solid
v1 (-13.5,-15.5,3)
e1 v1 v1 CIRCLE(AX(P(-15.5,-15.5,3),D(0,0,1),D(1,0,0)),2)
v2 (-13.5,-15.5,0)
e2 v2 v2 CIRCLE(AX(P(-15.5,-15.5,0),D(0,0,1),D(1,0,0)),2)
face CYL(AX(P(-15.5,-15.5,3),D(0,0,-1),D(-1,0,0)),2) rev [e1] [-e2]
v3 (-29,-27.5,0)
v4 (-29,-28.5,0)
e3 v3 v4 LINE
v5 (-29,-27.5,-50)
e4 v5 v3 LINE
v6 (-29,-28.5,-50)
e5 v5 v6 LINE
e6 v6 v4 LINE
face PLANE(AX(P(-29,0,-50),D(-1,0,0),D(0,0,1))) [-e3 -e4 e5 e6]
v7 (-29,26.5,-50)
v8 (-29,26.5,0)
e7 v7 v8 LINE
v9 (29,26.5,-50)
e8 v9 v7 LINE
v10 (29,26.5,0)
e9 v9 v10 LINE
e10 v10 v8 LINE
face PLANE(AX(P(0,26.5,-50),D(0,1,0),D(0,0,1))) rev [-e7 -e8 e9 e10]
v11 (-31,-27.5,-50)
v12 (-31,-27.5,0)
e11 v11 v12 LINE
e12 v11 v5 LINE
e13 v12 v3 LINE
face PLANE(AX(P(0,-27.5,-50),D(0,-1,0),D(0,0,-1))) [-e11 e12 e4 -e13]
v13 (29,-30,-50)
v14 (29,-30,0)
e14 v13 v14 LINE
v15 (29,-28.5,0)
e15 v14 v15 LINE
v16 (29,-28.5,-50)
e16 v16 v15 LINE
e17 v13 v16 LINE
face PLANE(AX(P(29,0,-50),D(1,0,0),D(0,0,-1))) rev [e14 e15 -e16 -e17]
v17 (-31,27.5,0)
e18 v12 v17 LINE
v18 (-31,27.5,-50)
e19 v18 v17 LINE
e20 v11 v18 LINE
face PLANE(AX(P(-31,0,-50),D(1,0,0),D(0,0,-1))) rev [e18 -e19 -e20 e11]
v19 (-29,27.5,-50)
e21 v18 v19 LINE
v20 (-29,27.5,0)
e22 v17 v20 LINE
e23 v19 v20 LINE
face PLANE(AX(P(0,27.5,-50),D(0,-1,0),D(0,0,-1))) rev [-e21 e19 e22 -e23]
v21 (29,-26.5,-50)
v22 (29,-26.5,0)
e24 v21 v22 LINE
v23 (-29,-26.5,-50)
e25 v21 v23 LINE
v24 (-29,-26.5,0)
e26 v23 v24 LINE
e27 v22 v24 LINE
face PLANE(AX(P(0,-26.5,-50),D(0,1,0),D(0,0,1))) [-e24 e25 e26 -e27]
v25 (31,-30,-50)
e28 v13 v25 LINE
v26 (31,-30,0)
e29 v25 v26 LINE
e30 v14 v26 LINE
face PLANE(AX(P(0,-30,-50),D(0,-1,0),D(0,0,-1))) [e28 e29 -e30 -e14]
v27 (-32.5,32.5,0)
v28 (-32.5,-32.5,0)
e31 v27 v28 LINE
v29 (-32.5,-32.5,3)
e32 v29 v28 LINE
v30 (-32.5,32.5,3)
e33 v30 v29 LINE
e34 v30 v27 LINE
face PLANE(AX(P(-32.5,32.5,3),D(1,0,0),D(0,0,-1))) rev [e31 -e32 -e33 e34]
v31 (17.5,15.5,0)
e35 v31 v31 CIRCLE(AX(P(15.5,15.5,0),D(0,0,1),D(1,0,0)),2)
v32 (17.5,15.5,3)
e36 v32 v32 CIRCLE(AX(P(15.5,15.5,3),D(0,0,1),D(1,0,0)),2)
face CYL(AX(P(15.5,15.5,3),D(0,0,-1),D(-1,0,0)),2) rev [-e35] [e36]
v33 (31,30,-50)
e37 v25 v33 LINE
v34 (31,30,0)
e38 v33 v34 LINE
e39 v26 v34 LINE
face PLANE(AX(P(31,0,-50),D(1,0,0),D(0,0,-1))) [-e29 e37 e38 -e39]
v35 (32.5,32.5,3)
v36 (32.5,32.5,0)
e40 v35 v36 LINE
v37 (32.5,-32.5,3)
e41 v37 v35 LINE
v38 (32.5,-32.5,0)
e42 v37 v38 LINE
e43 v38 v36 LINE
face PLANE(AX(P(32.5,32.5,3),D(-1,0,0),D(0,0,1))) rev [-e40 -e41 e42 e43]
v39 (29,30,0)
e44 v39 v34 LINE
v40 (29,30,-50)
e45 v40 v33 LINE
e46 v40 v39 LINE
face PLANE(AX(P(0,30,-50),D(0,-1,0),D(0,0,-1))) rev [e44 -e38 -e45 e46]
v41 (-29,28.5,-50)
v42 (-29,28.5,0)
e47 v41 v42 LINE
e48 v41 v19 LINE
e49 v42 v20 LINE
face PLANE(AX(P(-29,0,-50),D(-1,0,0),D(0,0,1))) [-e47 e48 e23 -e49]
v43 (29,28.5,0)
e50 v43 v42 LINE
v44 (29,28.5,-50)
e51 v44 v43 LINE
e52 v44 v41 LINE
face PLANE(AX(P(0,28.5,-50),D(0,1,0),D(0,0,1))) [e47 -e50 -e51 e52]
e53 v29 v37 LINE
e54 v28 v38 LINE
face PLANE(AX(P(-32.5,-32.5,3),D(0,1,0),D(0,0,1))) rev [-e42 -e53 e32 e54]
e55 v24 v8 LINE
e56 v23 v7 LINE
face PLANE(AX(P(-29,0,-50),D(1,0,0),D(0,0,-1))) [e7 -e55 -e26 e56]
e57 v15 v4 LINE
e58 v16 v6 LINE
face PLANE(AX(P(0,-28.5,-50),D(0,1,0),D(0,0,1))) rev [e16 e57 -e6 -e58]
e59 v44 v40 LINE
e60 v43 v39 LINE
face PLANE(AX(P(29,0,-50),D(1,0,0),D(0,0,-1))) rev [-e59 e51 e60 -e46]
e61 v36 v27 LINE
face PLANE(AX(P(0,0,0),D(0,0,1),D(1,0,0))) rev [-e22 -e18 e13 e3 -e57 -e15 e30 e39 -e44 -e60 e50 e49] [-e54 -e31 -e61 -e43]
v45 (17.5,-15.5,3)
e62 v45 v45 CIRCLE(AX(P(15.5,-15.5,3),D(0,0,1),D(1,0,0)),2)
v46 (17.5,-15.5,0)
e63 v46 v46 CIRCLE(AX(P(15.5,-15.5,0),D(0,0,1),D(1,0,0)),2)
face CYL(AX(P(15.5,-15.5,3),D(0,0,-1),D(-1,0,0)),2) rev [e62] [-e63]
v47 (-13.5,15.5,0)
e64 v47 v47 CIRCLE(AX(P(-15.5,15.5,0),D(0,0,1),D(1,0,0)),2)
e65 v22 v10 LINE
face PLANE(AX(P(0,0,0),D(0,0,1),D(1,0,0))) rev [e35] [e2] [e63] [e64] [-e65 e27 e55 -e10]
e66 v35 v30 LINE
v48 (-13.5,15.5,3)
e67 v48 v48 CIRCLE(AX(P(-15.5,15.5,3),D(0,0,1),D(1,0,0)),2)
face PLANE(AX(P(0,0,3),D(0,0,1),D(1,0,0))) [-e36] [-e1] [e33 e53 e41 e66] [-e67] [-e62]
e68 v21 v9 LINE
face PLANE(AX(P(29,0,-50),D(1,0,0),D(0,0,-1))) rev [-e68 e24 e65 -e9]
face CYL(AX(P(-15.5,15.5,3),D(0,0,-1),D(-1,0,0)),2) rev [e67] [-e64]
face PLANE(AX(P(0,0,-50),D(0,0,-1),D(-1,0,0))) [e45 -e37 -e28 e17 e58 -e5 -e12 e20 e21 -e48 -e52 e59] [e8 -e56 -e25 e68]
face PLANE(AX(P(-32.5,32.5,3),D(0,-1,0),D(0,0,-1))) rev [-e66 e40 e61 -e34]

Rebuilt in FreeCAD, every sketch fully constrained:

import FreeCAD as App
import Part
import Sketcher

doc = App.newDocument("Part")
body = doc.addObject("PartDesign::Body", "Body")

# Sketch on XY plane
sketch1 = body.newObject("Sketcher::SketchObject", "Sketch")
sketch1.AttachmentSupport = (doc.getObject("XY_Plane"), [""])
sketch1.MapMode = "FlatFace"
sketch1.addGeometry(Part.LineSegment(App.Vector(-32.5, 32.5, 0), App.Vector(-32.5, -32.5, 0)), False)
sketch1.addGeometry(Part.LineSegment(App.Vector(-32.5, -32.5, 0), App.Vector(32.5, -32.5, 0)), False)
sketch1.addGeometry(Part.LineSegment(App.Vector(32.5, -32.5, 0), App.Vector(32.5, 32.5, 0)), False)
sketch1.addGeometry(Part.LineSegment(App.Vector(32.5, 32.5, 0), App.Vector(-32.5, 32.5, 0)), False)
sketch1.addGeometry(Part.Circle(App.Vector(-15.5, -15.5, 0), App.Vector(0, 0, 1), 2), False)
sketch1.addGeometry(Part.Circle(App.Vector(15.5, -15.5, 0), App.Vector(0, 0, 1), 2), False)
sketch1.addGeometry(Part.Circle(App.Vector(-15.5, 15.5, 0), App.Vector(0, 0, 1), 2), False)
sketch1.addGeometry(Part.Circle(App.Vector(15.5, 15.5, 0), App.Vector(0, 0, 1), 2), False)
sketch1.addConstraint(Sketcher.Constraint("Coincident", 0, 2, 1, 1))
sketch1.addConstraint(Sketcher.Constraint("Coincident", 1, 2, 2, 1))
sketch1.addConstraint(Sketcher.Constraint("Coincident", 2, 2, 3, 1))
sketch1.addConstraint(Sketcher.Constraint("Coincident", 3, 2, 0, 1))
sketch1.addConstraint(Sketcher.Constraint("Vertical", 0))
sketch1.addConstraint(Sketcher.Constraint("Horizontal", 1))
sketch1.addConstraint(Sketcher.Constraint("Vertical", 2))
sketch1.addConstraint(Sketcher.Constraint("Horizontal", 3))
sketch1.addConstraint(Sketcher.Constraint("Equal", 4, 5))
sketch1.addConstraint(Sketcher.Constraint("Equal", 5, 6))
sketch1.addConstraint(Sketcher.Constraint("Equal", 6, 7))
sketch1.addConstraint(Sketcher.Constraint("Symmetric", 5, 3, 6, 3, -1, 1))
sketch1.addConstraint(Sketcher.Constraint("Symmetric", 4, 3, 7, 3, -1, 1))
sketch1.addConstraint(Sketcher.Constraint("Symmetric", 0, 2, 2, 2, -1, 1))
sketch1.addConstraint(Sketcher.Constraint("Symmetric", 4, 3, 5, 3, -2))
sketch1.addConstraint(Sketcher.Constraint("Equal", 3, 0))
sketch1.addConstraint(Sketcher.Constraint("Diameter", 4, 4.0))
sketch1.addConstraint(Sketcher.Constraint("DistanceX", 1, 1, 1, 2, 65.0))
sketch1.addConstraint(Sketcher.Constraint("DistanceX", 4, 3, 5, 3, 31.0))
sketch1.addConstraint(Sketcher.Constraint("DistanceY", 4, 3, 6, 3, 31.0))
pad1 = body.newObject("PartDesign::Pad", "Pad")
pad1.Profile = sketch1
pad1.Length = 3

# Sketch on XY plane
sketch2 = body.newObject("Sketcher::SketchObject", "Sketch001")
sketch2.AttachmentSupport = (doc.getObject("XY_Plane"), [""])
sketch2.MapMode = "FlatFace"
sketch2.addGeometry(Part.LineSegment(App.Vector(31, 30, 0), App.Vector(31, -30, 0)), False)
sketch2.addGeometry(Part.LineSegment(App.Vector(31, -30, 0), App.Vector(29, -30, 0)), False)
sketch2.addGeometry(Part.LineSegment(App.Vector(29, -30, 0), App.Vector(29, -28.5, 0)), False)
sketch2.addGeometry(Part.LineSegment(App.Vector(29, -28.5, 0), App.Vector(-29, -28.5, 0)), False)
sketch2.addGeometry(Part.LineSegment(App.Vector(-29, -28.5, 0), App.Vector(-29, -27.5, 0)), False)
sketch2.addGeometry(Part.LineSegment(App.Vector(-29, -27.5, 0), App.Vector(-31, -27.5, 0)), False)
sketch2.addGeometry(Part.LineSegment(App.Vector(-31, -27.5, 0), App.Vector(-31, 27.5, 0)), False)
sketch2.addGeometry(Part.LineSegment(App.Vector(-31, 27.5, 0), App.Vector(-29, 27.5, 0)), False)
sketch2.addGeometry(Part.LineSegment(App.Vector(-29, 27.5, 0), App.Vector(-29, 28.5, 0)), False)
sketch2.addGeometry(Part.LineSegment(App.Vector(-29, 28.5, 0), App.Vector(29, 28.5, 0)), False)
sketch2.addGeometry(Part.LineSegment(App.Vector(29, 28.5, 0), App.Vector(29, 30, 0)), False)
sketch2.addGeometry(Part.LineSegment(App.Vector(29, 30, 0), App.Vector(31, 30, 0)), False)
sketch2.addGeometry(Part.LineSegment(App.Vector(-29, 26.5, 0), App.Vector(-29, -26.5, 0)), False)
sketch2.addGeometry(Part.LineSegment(App.Vector(-29, -26.5, 0), App.Vector(29, -26.5, 0)), False)
sketch2.addGeometry(Part.LineSegment(App.Vector(29, -26.5, 0), App.Vector(29, 26.5, 0)), False)
sketch2.addGeometry(Part.LineSegment(App.Vector(29, 26.5, 0), App.Vector(-29, 26.5, 0)), False)
sketch2.addConstraint(Sketcher.Constraint("Coincident", 0, 2, 1, 1))
sketch2.addConstraint(Sketcher.Constraint("Coincident", 1, 2, 2, 1))
sketch2.addConstraint(Sketcher.Constraint("Coincident", 2, 2, 3, 1))
sketch2.addConstraint(Sketcher.Constraint("Coincident", 3, 2, 4, 1))
sketch2.addConstraint(Sketcher.Constraint("Coincident", 4, 2, 5, 1))
sketch2.addConstraint(Sketcher.Constraint("Coincident", 5, 2, 6, 1))
sketch2.addConstraint(Sketcher.Constraint("Coincident", 6, 2, 7, 1))
sketch2.addConstraint(Sketcher.Constraint("Coincident", 7, 2, 8, 1))
sketch2.addConstraint(Sketcher.Constraint("Coincident", 8, 2, 9, 1))
sketch2.addConstraint(Sketcher.Constraint("Coincident", 9, 2, 10, 1))
sketch2.addConstraint(Sketcher.Constraint("Coincident", 10, 2, 11, 1))
sketch2.addConstraint(Sketcher.Constraint("Coincident", 11, 2, 0, 1))
sketch2.addConstraint(Sketcher.Constraint("Coincident", 12, 2, 13, 1))
sketch2.addConstraint(Sketcher.Constraint("Coincident", 13, 2, 14, 1))
sketch2.addConstraint(Sketcher.Constraint("Coincident", 14, 2, 15, 1))
sketch2.addConstraint(Sketcher.Constraint("Coincident", 15, 2, 12, 1))
sketch2.addConstraint(Sketcher.Constraint("Vertical", 0))
sketch2.addConstraint(Sketcher.Constraint("Horizontal", 1))
sketch2.addConstraint(Sketcher.Constraint("Vertical", 2))
sketch2.addConstraint(Sketcher.Constraint("Horizontal", 3))
sketch2.addConstraint(Sketcher.Constraint("Vertical", 4))
sketch2.addConstraint(Sketcher.Constraint("Horizontal", 5))
sketch2.addConstraint(Sketcher.Constraint("Vertical", 6))
sketch2.addConstraint(Sketcher.Constraint("Horizontal", 7))
sketch2.addConstraint(Sketcher.Constraint("Vertical", 8))
sketch2.addConstraint(Sketcher.Constraint("Horizontal", 9))
sketch2.addConstraint(Sketcher.Constraint("Vertical", 10))
sketch2.addConstraint(Sketcher.Constraint("Horizontal", 11))
sketch2.addConstraint(Sketcher.Constraint("Vertical", 12))
sketch2.addConstraint(Sketcher.Constraint("Horizontal", 13))
sketch2.addConstraint(Sketcher.Constraint("Vertical", 14))
sketch2.addConstraint(Sketcher.Constraint("Horizontal", 15))
sketch2.addConstraint(Sketcher.Constraint("Symmetric", 2, 2, 8, 2, -1, 1))
sketch2.addConstraint(Sketcher.Constraint("Symmetric", 12, 2, 14, 2, -1, 1))
sketch2.addConstraint(Sketcher.Constraint("Symmetric", 4, 2, 7, 2, -1))
sketch2.addConstraint(Sketcher.Constraint("Symmetric", 1, 2, 10, 2, -1))
sketch2.addConstraint(Sketcher.Constraint("Vertical", 8, 2, 12, 2))
sketch2.addConstraint(Sketcher.Constraint("Equal", 1, 5))
sketch2.addConstraint(Sketcher.Constraint("DistanceX", 1, 2, 1, 1, 2.0))
sketch2.addConstraint(Sketcher.Constraint("DistanceX", 3, 2, 3, 1, 58.0))
sketch2.addConstraint(Sketcher.Constraint("DistanceY", 0, 2, 0, 1, 60.0))
sketch2.addConstraint(Sketcher.Constraint("DistanceY", 4, 1, 4, 2, 1.0))
sketch2.addConstraint(Sketcher.Constraint("DistanceY", 6, 1, 6, 2, 55.0))
sketch2.addConstraint(Sketcher.Constraint("DistanceY", 12, 2, 12, 1, 53.0))
pad2 = body.newObject("PartDesign::Pad", "Pad001")
pad2.Profile = sketch2
pad2.Length = 50
pad2.Reversed = True

doc.recompute()
